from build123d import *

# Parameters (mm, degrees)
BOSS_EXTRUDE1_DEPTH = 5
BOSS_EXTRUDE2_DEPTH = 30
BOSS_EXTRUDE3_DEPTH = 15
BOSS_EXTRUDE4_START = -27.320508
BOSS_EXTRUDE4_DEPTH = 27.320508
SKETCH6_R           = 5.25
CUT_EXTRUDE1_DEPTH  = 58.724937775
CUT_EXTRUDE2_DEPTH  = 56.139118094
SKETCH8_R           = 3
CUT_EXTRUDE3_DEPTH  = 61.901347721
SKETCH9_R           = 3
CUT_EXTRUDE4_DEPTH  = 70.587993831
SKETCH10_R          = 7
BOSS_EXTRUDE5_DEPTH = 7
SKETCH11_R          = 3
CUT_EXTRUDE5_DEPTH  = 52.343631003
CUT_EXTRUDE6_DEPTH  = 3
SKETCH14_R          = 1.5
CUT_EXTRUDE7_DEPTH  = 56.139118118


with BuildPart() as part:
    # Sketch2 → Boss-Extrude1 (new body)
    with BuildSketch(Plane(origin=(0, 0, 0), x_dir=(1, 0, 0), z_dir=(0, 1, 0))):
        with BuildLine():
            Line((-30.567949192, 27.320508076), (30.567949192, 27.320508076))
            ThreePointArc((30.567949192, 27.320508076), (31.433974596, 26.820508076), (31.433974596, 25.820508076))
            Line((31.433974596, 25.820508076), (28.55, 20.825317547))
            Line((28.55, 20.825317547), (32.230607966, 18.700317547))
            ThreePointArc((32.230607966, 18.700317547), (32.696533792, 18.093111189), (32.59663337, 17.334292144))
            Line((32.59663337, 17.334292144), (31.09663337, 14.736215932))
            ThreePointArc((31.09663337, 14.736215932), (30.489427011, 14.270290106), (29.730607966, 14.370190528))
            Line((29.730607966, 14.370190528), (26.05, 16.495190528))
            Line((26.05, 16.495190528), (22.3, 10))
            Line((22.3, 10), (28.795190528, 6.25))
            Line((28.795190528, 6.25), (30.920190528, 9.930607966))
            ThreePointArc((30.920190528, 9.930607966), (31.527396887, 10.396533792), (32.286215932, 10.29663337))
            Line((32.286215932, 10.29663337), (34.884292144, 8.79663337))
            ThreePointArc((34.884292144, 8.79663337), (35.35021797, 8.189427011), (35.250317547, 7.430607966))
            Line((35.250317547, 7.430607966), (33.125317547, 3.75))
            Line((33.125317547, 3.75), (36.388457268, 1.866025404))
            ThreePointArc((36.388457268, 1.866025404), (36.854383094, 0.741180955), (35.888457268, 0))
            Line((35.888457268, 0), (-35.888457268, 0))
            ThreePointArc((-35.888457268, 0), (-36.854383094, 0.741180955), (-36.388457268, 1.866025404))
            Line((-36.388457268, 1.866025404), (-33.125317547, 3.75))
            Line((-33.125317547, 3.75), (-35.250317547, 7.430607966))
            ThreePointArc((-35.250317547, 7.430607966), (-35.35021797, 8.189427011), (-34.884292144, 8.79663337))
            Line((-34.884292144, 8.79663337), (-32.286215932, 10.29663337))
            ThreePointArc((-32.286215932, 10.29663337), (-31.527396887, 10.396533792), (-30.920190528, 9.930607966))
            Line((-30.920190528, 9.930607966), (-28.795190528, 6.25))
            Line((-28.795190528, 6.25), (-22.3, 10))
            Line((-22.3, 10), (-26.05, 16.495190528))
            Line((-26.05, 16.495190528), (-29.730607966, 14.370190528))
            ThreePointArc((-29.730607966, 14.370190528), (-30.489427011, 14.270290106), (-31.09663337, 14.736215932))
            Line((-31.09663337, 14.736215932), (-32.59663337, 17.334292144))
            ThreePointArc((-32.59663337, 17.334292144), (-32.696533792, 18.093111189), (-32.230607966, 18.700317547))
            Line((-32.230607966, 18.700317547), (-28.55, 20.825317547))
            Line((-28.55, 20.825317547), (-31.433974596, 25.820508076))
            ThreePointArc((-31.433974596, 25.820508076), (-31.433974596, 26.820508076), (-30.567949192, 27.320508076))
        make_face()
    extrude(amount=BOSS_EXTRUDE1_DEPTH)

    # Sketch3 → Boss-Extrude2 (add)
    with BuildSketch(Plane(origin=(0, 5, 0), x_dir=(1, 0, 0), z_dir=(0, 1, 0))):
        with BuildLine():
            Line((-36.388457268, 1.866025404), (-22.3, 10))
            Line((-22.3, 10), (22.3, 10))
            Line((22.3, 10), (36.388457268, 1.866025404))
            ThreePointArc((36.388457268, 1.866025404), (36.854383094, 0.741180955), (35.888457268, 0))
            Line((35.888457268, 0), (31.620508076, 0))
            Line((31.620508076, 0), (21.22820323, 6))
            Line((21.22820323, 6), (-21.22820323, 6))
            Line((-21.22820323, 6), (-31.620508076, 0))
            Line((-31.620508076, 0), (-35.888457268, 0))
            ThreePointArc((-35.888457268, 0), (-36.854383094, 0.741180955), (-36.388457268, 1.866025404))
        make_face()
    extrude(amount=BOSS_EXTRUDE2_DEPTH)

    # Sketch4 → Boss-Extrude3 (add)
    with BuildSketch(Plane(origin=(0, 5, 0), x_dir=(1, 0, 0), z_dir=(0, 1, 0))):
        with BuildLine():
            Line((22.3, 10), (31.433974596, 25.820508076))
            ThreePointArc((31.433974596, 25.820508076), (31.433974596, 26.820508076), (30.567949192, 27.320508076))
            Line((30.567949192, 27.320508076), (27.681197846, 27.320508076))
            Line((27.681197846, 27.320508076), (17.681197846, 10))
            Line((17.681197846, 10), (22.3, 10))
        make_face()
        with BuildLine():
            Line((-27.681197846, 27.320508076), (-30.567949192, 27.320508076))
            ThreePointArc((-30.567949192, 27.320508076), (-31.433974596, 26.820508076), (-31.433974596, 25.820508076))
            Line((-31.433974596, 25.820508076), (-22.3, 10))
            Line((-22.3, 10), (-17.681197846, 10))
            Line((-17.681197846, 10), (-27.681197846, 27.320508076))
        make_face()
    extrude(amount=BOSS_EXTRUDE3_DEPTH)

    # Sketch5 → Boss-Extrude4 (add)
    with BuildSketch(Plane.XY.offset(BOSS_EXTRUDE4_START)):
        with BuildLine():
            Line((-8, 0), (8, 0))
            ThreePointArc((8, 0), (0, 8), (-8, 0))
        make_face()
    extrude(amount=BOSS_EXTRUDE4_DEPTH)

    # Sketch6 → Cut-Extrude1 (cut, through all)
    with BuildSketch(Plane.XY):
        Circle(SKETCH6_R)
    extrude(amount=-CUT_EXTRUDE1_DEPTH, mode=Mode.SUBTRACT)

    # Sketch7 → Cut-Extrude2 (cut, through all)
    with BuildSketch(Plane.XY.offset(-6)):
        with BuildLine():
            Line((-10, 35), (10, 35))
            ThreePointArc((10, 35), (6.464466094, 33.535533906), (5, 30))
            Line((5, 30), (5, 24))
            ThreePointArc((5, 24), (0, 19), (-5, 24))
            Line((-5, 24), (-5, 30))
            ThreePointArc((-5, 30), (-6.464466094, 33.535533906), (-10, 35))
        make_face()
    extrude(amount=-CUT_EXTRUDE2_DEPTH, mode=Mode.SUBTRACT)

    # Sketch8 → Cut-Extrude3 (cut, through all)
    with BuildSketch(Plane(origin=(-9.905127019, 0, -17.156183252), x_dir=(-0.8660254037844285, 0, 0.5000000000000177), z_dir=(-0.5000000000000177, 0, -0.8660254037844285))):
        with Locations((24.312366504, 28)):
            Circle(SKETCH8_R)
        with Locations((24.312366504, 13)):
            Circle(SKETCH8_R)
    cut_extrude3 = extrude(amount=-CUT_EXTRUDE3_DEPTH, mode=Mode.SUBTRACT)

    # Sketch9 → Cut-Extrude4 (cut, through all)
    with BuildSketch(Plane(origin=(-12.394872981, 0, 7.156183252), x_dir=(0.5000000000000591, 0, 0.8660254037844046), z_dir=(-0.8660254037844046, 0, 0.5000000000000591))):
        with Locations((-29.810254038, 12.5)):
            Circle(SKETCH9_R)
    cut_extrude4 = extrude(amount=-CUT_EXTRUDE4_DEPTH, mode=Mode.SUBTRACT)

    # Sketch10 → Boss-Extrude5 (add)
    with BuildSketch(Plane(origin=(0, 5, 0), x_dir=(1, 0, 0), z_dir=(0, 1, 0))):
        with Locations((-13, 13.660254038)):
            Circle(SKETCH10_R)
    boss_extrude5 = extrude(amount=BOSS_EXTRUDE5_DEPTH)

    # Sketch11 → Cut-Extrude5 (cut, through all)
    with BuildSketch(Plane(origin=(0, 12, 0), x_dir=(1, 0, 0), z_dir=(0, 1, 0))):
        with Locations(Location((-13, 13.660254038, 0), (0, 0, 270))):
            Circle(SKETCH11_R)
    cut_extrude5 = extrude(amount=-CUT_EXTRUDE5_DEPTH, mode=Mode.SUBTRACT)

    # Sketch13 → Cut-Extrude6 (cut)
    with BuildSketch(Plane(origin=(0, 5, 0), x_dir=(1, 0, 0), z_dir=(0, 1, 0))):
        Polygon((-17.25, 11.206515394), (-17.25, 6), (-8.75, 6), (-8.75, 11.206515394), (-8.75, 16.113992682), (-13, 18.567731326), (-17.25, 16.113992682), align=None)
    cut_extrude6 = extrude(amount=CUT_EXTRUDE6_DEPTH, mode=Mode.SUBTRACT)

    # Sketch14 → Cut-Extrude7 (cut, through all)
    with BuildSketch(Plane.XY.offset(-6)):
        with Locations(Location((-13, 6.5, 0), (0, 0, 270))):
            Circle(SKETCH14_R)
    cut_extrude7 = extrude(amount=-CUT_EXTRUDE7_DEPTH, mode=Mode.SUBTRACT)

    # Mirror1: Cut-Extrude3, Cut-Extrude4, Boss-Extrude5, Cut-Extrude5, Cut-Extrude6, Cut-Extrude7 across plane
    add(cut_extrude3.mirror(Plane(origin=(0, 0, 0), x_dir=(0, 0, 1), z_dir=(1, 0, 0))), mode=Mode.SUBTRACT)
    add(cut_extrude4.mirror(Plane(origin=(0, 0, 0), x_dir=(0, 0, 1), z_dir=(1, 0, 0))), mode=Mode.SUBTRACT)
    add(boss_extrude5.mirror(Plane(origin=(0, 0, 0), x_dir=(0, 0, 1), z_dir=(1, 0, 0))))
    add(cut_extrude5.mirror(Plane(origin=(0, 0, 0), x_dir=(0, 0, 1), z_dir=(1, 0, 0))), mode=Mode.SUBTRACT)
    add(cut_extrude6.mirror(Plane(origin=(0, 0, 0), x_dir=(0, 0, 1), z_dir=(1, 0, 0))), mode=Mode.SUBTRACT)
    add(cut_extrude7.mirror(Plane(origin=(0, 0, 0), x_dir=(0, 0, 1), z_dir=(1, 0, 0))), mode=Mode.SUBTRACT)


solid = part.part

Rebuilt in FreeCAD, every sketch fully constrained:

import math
import FreeCAD as App
import Part
import Sketcher
from FreeCAD import Vector
Q = App.Units.Quantity

doc = App.newDocument("Part")
body = doc.addObject("PartDesign::Body", "Body")

sketch1 = body.newObject("Sketcher::SketchObject", "Sketch")
sketch1.AttachmentSupport = (doc.getObject("XZ_Plane"), [""])
sketch1.MapMode = "FlatFace"
sketch1.addGeometry([
    Part.LineSegment(Vector(30.6, -27.3, 0), Vector(-30.6, -27.3, 0)),
    Part.ArcOfCircle(Part.Circle(Vector(-30.6, -26.3, 0), Vector(0, 0, 1), 1), math.radians(150), math.radians(270)),
    Part.LineSegment(Vector(-31.4, -25.8, 0), Vector(-28.6, -20.8, 0)),
    Part.LineSegment(Vector(-28.6, -20.8, 0), Vector(-32.2, -18.7, 0)),
    Part.ArcOfCircle(Part.Circle(Vector(-31.7, -17.8, 0), Vector(0, 0, 1), 1), math.radians(150), math.radians(240)),
    Part.LineSegment(Vector(-32.6, -17.3, 0), Vector(-31.1, -14.7, 0)),
    Part.ArcOfCircle(Part.Circle(Vector(-30.2, -15.2, 0), Vector(0, 0, 1), 1), math.radians(60), math.radians(150)),
    Part.LineSegment(Vector(-29.7, -14.4, 0), Vector(-26.1, -16.5, 0)),
    Part.LineSegment(Vector(-26.1, -16.5, 0), Vector(-22.3, -10, 0)),
    Part.LineSegment(Vector(-22.3, -10, 0), Vector(-28.8, -6.2, 0)),
    Part.LineSegment(Vector(-28.8, -6.2, 0), Vector(-30.9, -9.9, 0)),
    Part.ArcOfCircle(Part.Circle(Vector(-31.8, -9.4, 0), Vector(0, 0, 1), 1), math.radians(-120), math.radians(-30)),
    Part.LineSegment(Vector(-32.3, -10.3, 0), Vector(-34.9, -8.8, 0)),
    Part.ArcOfCircle(Part.Circle(Vector(-34.4, -7.9, 0), Vector(0, 0, 1), 1), math.radians(150), math.radians(240)),
    Part.LineSegment(Vector(-35.3, -7.4, 0), Vector(-33.1, -3.8, 0)),
    Part.LineSegment(Vector(-33.1, -3.8, 0), Vector(-36.4, -1.9, 0)),
    Part.ArcOfCircle(Part.Circle(Vector(-35.9, -1, 0), Vector(0, 0, 1), 1), math.radians(90), math.radians(240)),
    Part.LineSegment(Vector(-35.9, 0, 0), Vector(35.9, 0, 0)),
    Part.ArcOfCircle(Part.Circle(Vector(35.9, -1, 0), Vector(0, 0, 1), 1), math.radians(-60), math.radians(90)),
    Part.LineSegment(Vector(36.4, -1.9, 0), Vector(33.1, -3.8, 0)),
    Part.LineSegment(Vector(33.1, -3.8, 0), Vector(35.3, -7.4, 0)),
    Part.ArcOfCircle(Part.Circle(Vector(34.4, -7.9, 0), Vector(0, 0, 1), 1), math.radians(-60), math.radians(30)),
    Part.LineSegment(Vector(34.9, -8.8, 0), Vector(32.3, -10.3, 0)),
    Part.ArcOfCircle(Part.Circle(Vector(31.8, -9.4, 0), Vector(0, 0, 1), 1), math.radians(-150), math.radians(-60)),
    Part.LineSegment(Vector(30.9, -9.9, 0), Vector(28.8, -6.2, 0)),
    Part.LineSegment(Vector(28.8, -6.2, 0), Vector(22.3, -10, 0)),
    Part.LineSegment(Vector(22.3, -10, 0), Vector(26.1, -16.5, 0)),
    Part.LineSegment(Vector(26.1, -16.5, 0), Vector(29.7, -14.4, 0)),
    Part.ArcOfCircle(Part.Circle(Vector(30.2, -15.2, 0), Vector(0, 0, 1), 1), math.radians(30), math.radians(120)),
    Part.LineSegment(Vector(31.1, -14.7, 0), Vector(32.6, -17.3, 0)),
    Part.ArcOfCircle(Part.Circle(Vector(31.7, -17.8, 0), Vector(0, 0, 1), 1), math.radians(-60), math.radians(30)),
    Part.LineSegment(Vector(32.2, -18.7, 0), Vector(28.6, -20.8, 0)),
    Part.LineSegment(Vector(28.6, -20.8, 0), Vector(31.4, -25.8, 0)),
    Part.ArcOfCircle(Part.Circle(Vector(30.6, -26.3, 0), Vector(0, 0, 1), 1), math.radians(-90), math.radians(30)),
], False)
sketch1.addConstraint([
    Sketcher.Constraint("Tangent", 0, 2, 1, 2),
    Sketcher.Constraint("Tangent", 1, 1, 2, 1),
    Sketcher.Constraint("Coincident", 2, 2, 3, 1),
    Sketcher.Constraint("Tangent", 3, 2, 4, 2),
    Sketcher.Constraint("Tangent", 4, 1, 5, 1),
    Sketcher.Constraint("Tangent", 5, 2, 6, 2),
    Sketcher.Constraint("Tangent", 6, 1, 7, 1),
    Sketcher.Constraint("Coincident", 7, 2, 8, 1),
    Sketcher.Constraint("Coincident", 8, 2, 9, 1),
    Sketcher.Constraint("Coincident", 9, 2, 10, 1),
    Sketcher.Constraint("Tangent", 10, 2, 11, 2),
    Sketcher.Constraint("Tangent", 11, 1, 12, 1),
    Sketcher.Constraint("Tangent", 12, 2, 13, 2),
    Sketcher.Constraint("Tangent", 13, 1, 14, 1),
    Sketcher.Constraint("Coincident", 14, 2, 15, 1),
    Sketcher.Constraint("Tangent", 15, 2, 16, 2),
    Sketcher.Constraint("Tangent", 16, 1, 17, 1),
    Sketcher.Constraint("Tangent", 17, 2, 18, 2),
    Sketcher.Constraint("Tangent", 18, 1, 19, 1),
    Sketcher.Constraint("Coincident", 19, 2, 20, 1),
    Sketcher.Constraint("Tangent", 20, 2, 21, 2),
    Sketcher.Constraint("Tangent", 21, 1, 22, 1),
    Sketcher.Constraint("Tangent", 22, 2, 23, 2),
    Sketcher.Constraint("Tangent", 23, 1, 24, 1),
    Sketcher.Constraint("Coincident", 24, 2, 25, 1),
    Sketcher.Constraint("Coincident", 25, 2, 26, 1),
    Sketcher.Constraint("Coincident", 26, 2, 27, 1),
    Sketcher.Constraint("Tangent", 27, 2, 28, 2),
    Sketcher.Constraint("Tangent", 28, 1, 29, 1),
    Sketcher.Constraint("Tangent", 29, 2, 30, 2),
    Sketcher.Constraint("Tangent", 30, 1, 31, 1),
    Sketcher.Constraint("Coincident", 31, 2, 32, 1),
    Sketcher.Constraint("Tangent", 32, 2, 33, 2),
    Sketcher.Constraint("Tangent", 33, 1, 0, 1),
    Sketcher.Constraint("Horizontal", 0),
    Sketcher.Constraint("Horizontal", 17),
    Sketcher.Constraint("Equal", 1, 4),
    Sketcher.Constraint("Equal", 4, 6),
    Sketcher.Constraint("Equal", 6, 11),
    Sketcher.Constraint("Equal", 11, 13),
    Sketcher.Constraint("Equal", 13, 16),
    Sketcher.Constraint("Equal", 16, 18),
    Sketcher.Constraint("Equal", 18, 21),
    Sketcher.Constraint("Equal", 21, 23),
    Sketcher.Constraint("Equal", 23, 28),
    Sketcher.Constraint("Equal", 28, 30),
    Sketcher.Constraint("Equal", 30, 33),
    Sketcher.Constraint("Symmetric", 16, 1, 17, 2, -1, 1),
    Sketcher.Constraint("Symmetric", 13, 3, 21, 3, -2),
    Sketcher.Constraint("Symmetric", 11, 3, 23, 3, -2),
    Sketcher.Constraint("Symmetric", 6, 3, 28, 3, -2),
    Sketcher.Constraint("Symmetric", 4, 3, 30, 3, -2),
    Sketcher.Constraint("Symmetric", 14, 2, 19, 2, -2),
    Sketcher.Constraint("Symmetric", 9, 2, 24, 2, -2),
    Sketcher.Constraint("Symmetric", 8, 2, 25, 2, -2),
    Sketcher.Constraint("Symmetric", 7, 2, 26, 2, -2),
    Sketcher.Constraint("Symmetric", 2, 2, 31, 2, -2),
    Sketcher.Constraint("Perpendicular", 2, 3),
    Sketcher.Constraint("Perpendicular", 3, 5),
    Sketcher.Constraint("Perpendicular", 5, 7),
    Sketcher.Constraint("Perpendicular", 7, 8),
    Sketcher.Constraint("Perpendicular", 8, 9),
    Sketcher.Constraint("Perpendicular", 9, 10),
    Sketcher.Constraint("Perpendicular", 10, 12),
    Sketcher.Constraint("Perpendicular", 12, 14),
    Sketcher.Constraint("Perpendicular", 14, 15),
    Sketcher.Constraint("Perpendicular", 31, 32),
    Sketcher.Constraint("Equal", 3, 7),
    Sketcher.Constraint("Equal", 8, 9),
    Sketcher.Constraint("Equal", 7, 10),
    Sketcher.Constraint("Equal", 5, 12),
    Sketcher.Constraint("Equal", 10, 14),
    Sketcher.Constraint("Radius", 1, Q("1 mm")),
    Sketcher.Constraint("Angle", 2, Q("60 deg")),
    Sketcher.Constraint("Distance", 5, Q("3 mm")),
    Sketcher.Constraint("DistanceY", 8, 2, -1, 1, Q("10 mm")),
    Sketcher.Constraint("Distance", 8, Q("7.5 mm")),
    Sketcher.Constraint("DistanceX", 8, 2, -1, 1, Q("22.3 mm")),
    Sketcher.Constraint("Distance", 3, Q("4.25 mm")),
    Sketcher.Constraint("DistanceX", 0, 2, 0, 1, Q("61.135898 mm")),
])
pad1 = body.newObject("PartDesign::Pad", "Pad")
pad1.Profile = sketch1
pad1.Length = 5
pad1.Reversed = True

sketch2 = body.newObject("Sketcher::SketchObject", "Sketch001")
sketch2.AttachmentSupport = (doc.getObject("XZ_Plane"), [""])
sketch2.MapMode = "FlatFace"
sketch2.AttachmentOffset = App.Placement(Vector(0, 0, -5), App.Rotation())
sketch2.addGeometry([
    Part.LineSegment(Vector(-22.3, -10, 0), Vector(-36.4, -1.9, 0)),
    Part.ArcOfCircle(Part.Circle(Vector(-35.9, -1, 0), Vector(0, 0, 1), 1), math.radians(90), math.radians(240)),
    Part.LineSegment(Vector(-35.9, 0, 0), Vector(-31.6, 0, 0)),
    Part.LineSegment(Vector(-31.6, 0, 0), Vector(-21.2, -6, 0)),
    Part.LineSegment(Vector(-21.2, -6, 0), Vector(21.2, -6, 0)),
    Part.LineSegment(Vector(21.2, -6, 0), Vector(31.6, 0, 0)),
    Part.LineSegment(Vector(31.6, 0, 0), Vector(35.9, 0, 0)),
    Part.ArcOfCircle(Part.Circle(Vector(35.9, -1, 0), Vector(0, 0, 1), 1), math.radians(-60), math.radians(90)),
    Part.LineSegment(Vector(36.4, -1.9, 0), Vector(22.3, -10, 0)),
    Part.LineSegment(Vector(22.3, -10, 0), Vector(-22.3, -10, 0)),
], False)
sketch2.addConstraint([
    Sketcher.Constraint("Tangent", 0, 2, 1, 2),
    Sketcher.Constraint("Tangent", 1, 1, 2, 1),
    Sketcher.Constraint("Coincident", 2, 2, 3, 1),
    Sketcher.Constraint("Coincident", 3, 2, 4, 1),
    Sketcher.Constraint("Coincident", 4, 2, 5, 1),
    Sketcher.Constraint("Coincident", 5, 2, 6, 1),
    Sketcher.Constraint("Tangent", 6, 2, 7, 2),
    Sketcher.Constraint("Tangent", 7, 1, 8, 1),
    Sketcher.Constraint("Coincident", 8, 2, 9, 1),
    Sketcher.Constraint("Coincident", 9, 2, 0, 1),
    Sketcher.Constraint("Horizontal", 2),
    Sketcher.Constraint("Horizontal", 4),
    Sketcher.Constraint("Horizontal", 6),
    Sketcher.Constraint("Horizontal", 9),
    Sketcher.Constraint("Equal", 1, 7),
    Sketcher.Constraint("Symmetric", 2, 2, 5, 2, -1, 1),
    Sketcher.Constraint("Symmetric", 1, 3, 7, 3, -2),
    Sketcher.Constraint("Parallel", 0, 3),
    Sketcher.Constraint("Parallel", 5, 8),
    Sketcher.Constraint("Horizontal", 0, 2, 7, 1),
    Sketcher.Constraint("Radius", 1, Q("1 mm")),
    Sketcher.Constraint("Angle", 0, Q("150 deg")),
    Sketcher.Constraint("Distance", 3, Q("12 mm")),
    Sketcher.Constraint("DistanceX", 9, 2, 9, 1, Q("44.6 mm")),
    Sketcher.Constraint("DistanceY", 8, 2, -1, 1, Q("10 mm")),
    Sketcher.Constraint("DistanceX", 2, 1, 2, 2, Q("4.267949 mm")),
])
pad2 = body.newObject("PartDesign::Pad", "Pad001")
pad2.Profile = sketch2
pad2.Length = 30
pad2.Reversed = True

sketch3 = body.newObject("Sketcher::SketchObject", "Sketch002")
sketch3.AttachmentSupport = (doc.getObject("XZ_Plane"), [""])
sketch3.MapMode = "FlatFace"
sketch3.AttachmentOffset = App.Placement(Vector(0, 0, -5), App.Rotation())
sketch3.addGeometry([
    Part.LineSegment(Vector(22.3, -10, 0), Vector(31.4, -25.8, 0)),
    Part.ArcOfCircle(Part.Circle(Vector(30.6, -26.3, 0), Vector(0, 0, 1), 1), math.radians(-90), math.radians(30)),
    Part.LineSegment(Vector(30.6, -27.3, 0), Vector(27.7, -27.3, 0)),
    Part.LineSegment(Vector(27.7, -27.3, 0), Vector(17.7, -10, 0)),
    Part.LineSegment(Vector(17.7, -10, 0), Vector(22.3, -10, 0)),
    Part.LineSegment(Vector(-27.7, -27.3, 0), Vector(-30.6, -27.3, 0)),
    Part.ArcOfCircle(Part.Circle(Vector(-30.6, -26.3, 0), Vector(0, 0, 1), 1), math.radians(150), math.radians(270)),
    Part.LineSegment(Vector(-31.4, -25.8, 0), Vector(-22.3, -10, 0)),
    Part.LineSegment(Vector(-22.3, -10, 0), Vector(-17.7, -10, 0)),
    Part.LineSegment(Vector(-17.7, -10, 0), Vector(-27.7, -27.3, 0)),
], False)
sketch3.addConstraint([
    Sketcher.Constraint("Tangent", 0, 2, 1, 2),
    Sketcher.Constraint("Tangent", 1, 1, 2, 1),
    Sketcher.Constraint("Coincident", 2, 2, 3, 1),
    Sketcher.Constraint("Coincident", 3, 2, 4, 1),
    Sketcher.Constraint("Coincident", 4, 2, 0, 1),
    Sketcher.Constraint("Tangent", 5, 2, 6, 2),
    Sketcher.Constraint("Tangent", 6, 1, 7, 1),
    Sketcher.Constraint("Coincident", 7, 2, 8, 1),
    Sketcher.Constraint("Coincident", 8, 2, 9, 1),
    Sketcher.Constraint("Coincident", 9, 2, 5, 1),
    Sketcher.Constraint("Horizontal", 2),
    Sketcher.Constraint("Horizontal", 4),
    Sketcher.Constraint("Horizontal", 5),
    Sketcher.Constraint("Horizontal", 8),
    Sketcher.Constraint("Equal", 1, 6),
    Sketcher.Constraint("Symmetric", 1, 3, 6, 3, -2),
    Sketcher.Constraint("Symmetric", 4, 2, 7, 2, -2),
    Sketcher.Constraint("Parallel", 0, 3),
    Sketcher.Constraint("Parallel", 7, 9),
    Sketcher.Constraint("Equal", 2, 5),
    Sketcher.Constraint("Radius", 1, Q("1 mm")),
    Sketcher.Constraint("Angle", 0, Q("-60 deg")),
    Sketcher.Constraint("Distance", 3, Q("20 mm")),
    Sketcher.Constraint("DistanceY", 3, 2, -1, 1, Q("10 mm")),
    Sketcher.Constraint("DistanceX", -1, 1, 4, 2, Q("22.3 mm")),
    Sketcher.Constraint("DistanceX", 2, 2, 2, 1, Q("2.886751 mm")),
])
pad3 = body.newObject("PartDesign::Pad", "Pad002")
pad3.Profile = sketch3
pad3.Length = 15
pad3.Reversed = True

sketch4 = body.newObject("Sketcher::SketchObject", "Sketch003")
sketch4.AttachmentSupport = (doc.getObject("XY_Plane"), [""])
sketch4.MapMode = "FlatFace"
sketch4.AttachmentOffset = App.Placement(Vector(0, 0, -27.320508), App.Rotation())
sketch4.addGeometry([
    Part.LineSegment(Vector(-8, 0, 0), Vector(8, 0, 0)),
    Part.ArcOfCircle(Part.Circle(Vector(0, 0, 0), Vector(0, 0, 1), 8), math.radians(0), math.radians(180)),
], False)
sketch4.addConstraint([
    Sketcher.Constraint("Coincident", 0, 1, 1, 2),
    Sketcher.Constraint("Coincident", 1, 1, 0, 2),
    Sketcher.Constraint("Horizontal", 0),
    Sketcher.Constraint("Coincident", 1, 3, -1, 1),
    Sketcher.Constraint("PointOnObject", 0, 1, -1),
    Sketcher.Constraint("Radius", 1, Q("8 mm")),
])
pad4 = body.newObject("PartDesign::Pad", "Pad003")
pad4.Profile = sketch4
pad4.Length = 27.320508

sketch5 = body.newObject("Sketcher::SketchObject", "Sketch004")
sketch5.AttachmentSupport = (doc.getObject("XY_Plane"), [""])
sketch5.MapMode = "FlatFace"
sketch5.addGeometry(Part.Circle(Vector(0, 0, 0), Vector(0, 0, 1), 5), False)
sketch5.addConstraint([
    Sketcher.Constraint("Coincident", 0, 3, -1, 1),
    Sketcher.Constraint("Diameter", 0, Q("10.5 mm")),
])
pocket1 = body.newObject("PartDesign::Pocket", "Pocket")
pocket1.Profile = sketch5
pocket1.Type = "ThroughAll"

sketch6 = body.newObject("Sketcher::SketchObject", "Sketch005")
sketch6.AttachmentSupport = (doc.getObject("XY_Plane"), [""])
sketch6.MapMode = "FlatFace"
sketch6.AttachmentOffset = App.Placement(Vector(0, 0, -6), App.Rotation())
sketch6.addGeometry([
    Part.LineSegment(Vector(10, 35, 0), Vector(-10, 35, 0)),
    Part.ArcOfCircle(Part.Circle(Vector(-10, 30, 0), Vector(0, 0, 1), 5), math.radians(0), math.radians(90)),
    Part.LineSegment(Vector(-5, 30, 0), Vector(-5, 24, 0)),
    Part.ArcOfCircle(Part.Circle(Vector(0, 24, 0), Vector(0, 0, 1), 5), math.radians(180), math.radians(360)),
    Part.LineSegment(Vector(5, 24, 0), Vector(5, 30, 0)),
    Part.ArcOfCircle(Part.Circle(Vector(10, 30, 0), Vector(0, 0, 1), 5), math.radians(90), math.radians(180)),
], False)
sketch6.addConstraint([
    Sketcher.Constraint("Tangent", 0, 2, 1, 2),
    Sketcher.Constraint("Tangent", 1, 1, 2, 1),
    Sketcher.Constraint("Tangent", 2, 2, 3, 1),
    Sketcher.Constraint("Tangent", 3, 2, 4, 1),
    Sketcher.Constraint("Tangent", 4, 2, 5, 2),
    Sketcher.Constraint("Tangent", 5, 1, 0, 1),
    Sketcher.Constraint("Horizontal", 0),
    Sketcher.Constraint("Vertical", 2),
    Sketcher.Constraint("Vertical", 4),
    Sketcher.Constraint("Equal", 1, 3),
    Sketcher.Constraint("Equal", 3, 5),
    Sketcher.Constraint("PointOnObject", 3, 3, -2),
    Sketcher.Constraint("Radius", 1, Q("5 mm")),
    Sketcher.Constraint("DistanceY", 2, 2, 2, 1, Q("6 mm")),
    Sketcher.Constraint("DistanceY", -1, 1, 1, 3, Q("30 mm")),
])
pocket2 = body.newObject("PartDesign::Pocket", "Pocket001")
pocket2.Profile = sketch6
pocket2.Type = "ThroughAll"

sketch7 = body.newObject("Sketcher::SketchObject", "Sketch006")
sketch7.Placement = App.Placement(Vector(-9.905127, 0, -17.156183), App.Rotation(Vector(-0.866025404, 0, 0.5), Vector(0, 1, 0), Vector(-0.5, 0, -0.866025404), "ZXY"))
sketch7.addGeometry([
    Part.Circle(Vector(24.3, 28, 0), Vector(0, 0, 1), 3),
    Part.Circle(Vector(24.3, 13, 0), Vector(0, 0, 1), 3),
], False)
sketch7.addConstraint([
    Sketcher.Constraint("Equal", 0, 1),
    Sketcher.Constraint("Vertical", 0, 3, 1, 3),
    Sketcher.Constraint("Diameter", 0, Q("6 mm")),
    Sketcher.Constraint("DistanceY", -1, 1, 0, 3, Q("28 mm")),
    Sketcher.Constraint("DistanceY", -1, 1, 1, 3, Q("13 mm")),
    Sketcher.Constraint("DistanceX", -1, 1, 0, 3, Q("24.312367 mm")),
])
pocket3 = body.newObject("PartDesign::Pocket", "Pocket002")
pocket3.Profile = sketch7
pocket3.Type = "ThroughAll"

sketch8 = body.newObject("Sketcher::SketchObject", "Sketch007")
sketch8.Placement = App.Placement(Vector(-12.394873, 0, 7.156183), App.Rotation(Vector(0.5, 0, 0.866025404), Vector(0, 1, 0), Vector(-0.866025404, 0, 0.5), "ZXY"))
sketch8.addGeometry(Part.Circle(Vector(-29.8, 12.5, 0), Vector(0, 0, 1), 3), False)
sketch8.addConstraint([
    Sketcher.Constraint("Diameter", 0, Q("6 mm")),
    Sketcher.Constraint("DistanceY", -1, 1, 0, 3, Q("12.5 mm")),
    Sketcher.Constraint("DistanceX", 0, 3, -1, 1, Q("29.810254 mm")),
])
pocket4 = body.newObject("PartDesign::Pocket", "Pocket003")
pocket4.Profile = sketch8
pocket4.Type = "ThroughAll"

sketch9 = body.newObject("Sketcher::SketchObject", "Sketch008")
sketch9.AttachmentSupport = (doc.getObject("XZ_Plane"), [""])
sketch9.MapMode = "FlatFace"
sketch9.AttachmentOffset = App.Placement(Vector(0, 0, -5), App.Rotation())
sketch9.addGeometry(Part.Circle(Vector(-13, -14, 0), Vector(0, 0, 1), 7), False)
sketch9.addConstraint([
    Sketcher.Constraint("Diameter", 0, Q("14 mm")),
    Sketcher.Constraint("DistanceX", 0, 3, -1, 1, Q("13 mm")),
    Sketcher.Constraint("DistanceY", 0, 3, -1, 1, Q("13.660254 mm")),
])
pad5 = body.newObject("PartDesign::Pad", "Pad004")
pad5.Profile = sketch9
pad5.Length = 7
pad5.Reversed = True

sketch10 = body.newObject("Sketcher::SketchObject", "Sketch009")
sketch10.AttachmentSupport = (doc.getObject("XZ_Plane"), [""])
sketch10.MapMode = "FlatFace"
sketch10.AttachmentOffset = App.Placement(Vector(0, 0, -12), App.Rotation())
sketch10.addGeometry(Part.Circle(Vector(-13, -13.7, 0), Vector(0, 0, 1), 3), False)
sketch10.addConstraint([
    Sketcher.Constraint("Diameter", 0, Q("6 mm")),
    Sketcher.Constraint("DistanceX", 0, 3, -1, 1, Q("13 mm")),
    Sketcher.Constraint("DistanceY", 0, 3, -1, 1, Q("13.660254 mm")),
])
pocket5 = body.newObject("PartDesign::Pocket", "Pocket004")
pocket5.Profile = sketch10
pocket5.Type = "ThroughAll"
pocket5.Reversed = True

sketch11 = body.newObject("Sketcher::SketchObject", "Sketch010")
sketch11.AttachmentSupport = (doc.getObject("XZ_Plane"), [""])
sketch11.MapMode = "FlatFace"
sketch11.AttachmentOffset = App.Placement(Vector(0, 0, -5), App.Rotation())
sketch11.addGeometry([
    Part.LineSegment(Vector(-17.2, -6, 0), Vector(-8.8, -6, 0)),
    Part.LineSegment(Vector(-8.8, -6, 0), Vector(-8.8, -16.1, 0)),
    Part.LineSegment(Vector(-8.8, -16.1, 0), Vector(-13, -18.6, 0)),
    Part.LineSegment(Vector(-13, -18.6, 0), Vector(-17.2, -16.1, 0)),
    Part.LineSegment(Vector(-17.2, -16.1, 0), Vector(-17.2, -6, 0)),
], False)
sketch11.addConstraint([
    Sketcher.Constraint("Coincident", 0, 2, 1, 1),
    Sketcher.Constraint("Coincident", 1, 2, 2, 1),
    Sketcher.Constraint("Coincident", 2, 2, 3, 1),
    Sketcher.Constraint("Coincident", 3, 2, 4, 1),
    Sketcher.Constraint("Coincident", 4, 2, 0, 1),
    Sketcher.Constraint("Horizontal", 0),
    Sketcher.Constraint("Vertical", 1),
    Sketcher.Constraint("Vertical", 4),
    Sketcher.Constraint("Horizontal", 1, 2, 3, 2),
    Sketcher.Constraint("Equal", 2, 3),
    Sketcher.Constraint("Angle", 2, Q("-150 deg")),
    Sketcher.Constraint("DistanceX", 0, 1, 0, 2, Q("8.5 mm")),
    Sketcher.Constraint("DistanceY", 0, 2, -1, 1, Q("6 mm")),
    Sketcher.Constraint("DistanceX", 2, 2, -1, 1, Q("13 mm")),
    Sketcher.Constraint("DistanceY", 1, 2, 1, 1, Q("10.113993 mm")),
])
pocket6 = body.newObject("PartDesign::Pocket", "Pocket005")
pocket6.Profile = sketch11
pocket6.Length = 3

sketch12 = body.newObject("Sketcher::SketchObject", "Sketch011")
sketch12.AttachmentSupport = (doc.getObject("XY_Plane"), [""])
sketch12.MapMode = "FlatFace"
sketch12.AttachmentOffset = App.Placement(Vector(0, 0, -6), App.Rotation())
sketch12.addGeometry(Part.Circle(Vector(-13, 6.5, 0), Vector(0, 0, 1), 1.5), False)
sketch12.addConstraint([
    Sketcher.Constraint("Diameter", 0, Q("3 mm")),
    Sketcher.Constraint("DistanceX", 0, 3, -1, 1, Q("13 mm")),
    Sketcher.Constraint("DistanceY", -1, 1, 0, 3, Q("6.5 mm")),
])
pocket7 = body.newObject("PartDesign::Pocket", "Pocket006")
pocket7.Profile = sketch12
pocket7.Type = "ThroughAll"
doc.recompute()

mirrored = body.newObject("PartDesign::Mirrored", "Mirrored")
mirrored.Originals = [pocket3, pocket4, pad5, pocket5, pocket6, pocket7]
mirrored.MirrorPlane = (doc.getObject("YZ_Plane"), [""])
body.Tip = mirrored

doc.recompute()
